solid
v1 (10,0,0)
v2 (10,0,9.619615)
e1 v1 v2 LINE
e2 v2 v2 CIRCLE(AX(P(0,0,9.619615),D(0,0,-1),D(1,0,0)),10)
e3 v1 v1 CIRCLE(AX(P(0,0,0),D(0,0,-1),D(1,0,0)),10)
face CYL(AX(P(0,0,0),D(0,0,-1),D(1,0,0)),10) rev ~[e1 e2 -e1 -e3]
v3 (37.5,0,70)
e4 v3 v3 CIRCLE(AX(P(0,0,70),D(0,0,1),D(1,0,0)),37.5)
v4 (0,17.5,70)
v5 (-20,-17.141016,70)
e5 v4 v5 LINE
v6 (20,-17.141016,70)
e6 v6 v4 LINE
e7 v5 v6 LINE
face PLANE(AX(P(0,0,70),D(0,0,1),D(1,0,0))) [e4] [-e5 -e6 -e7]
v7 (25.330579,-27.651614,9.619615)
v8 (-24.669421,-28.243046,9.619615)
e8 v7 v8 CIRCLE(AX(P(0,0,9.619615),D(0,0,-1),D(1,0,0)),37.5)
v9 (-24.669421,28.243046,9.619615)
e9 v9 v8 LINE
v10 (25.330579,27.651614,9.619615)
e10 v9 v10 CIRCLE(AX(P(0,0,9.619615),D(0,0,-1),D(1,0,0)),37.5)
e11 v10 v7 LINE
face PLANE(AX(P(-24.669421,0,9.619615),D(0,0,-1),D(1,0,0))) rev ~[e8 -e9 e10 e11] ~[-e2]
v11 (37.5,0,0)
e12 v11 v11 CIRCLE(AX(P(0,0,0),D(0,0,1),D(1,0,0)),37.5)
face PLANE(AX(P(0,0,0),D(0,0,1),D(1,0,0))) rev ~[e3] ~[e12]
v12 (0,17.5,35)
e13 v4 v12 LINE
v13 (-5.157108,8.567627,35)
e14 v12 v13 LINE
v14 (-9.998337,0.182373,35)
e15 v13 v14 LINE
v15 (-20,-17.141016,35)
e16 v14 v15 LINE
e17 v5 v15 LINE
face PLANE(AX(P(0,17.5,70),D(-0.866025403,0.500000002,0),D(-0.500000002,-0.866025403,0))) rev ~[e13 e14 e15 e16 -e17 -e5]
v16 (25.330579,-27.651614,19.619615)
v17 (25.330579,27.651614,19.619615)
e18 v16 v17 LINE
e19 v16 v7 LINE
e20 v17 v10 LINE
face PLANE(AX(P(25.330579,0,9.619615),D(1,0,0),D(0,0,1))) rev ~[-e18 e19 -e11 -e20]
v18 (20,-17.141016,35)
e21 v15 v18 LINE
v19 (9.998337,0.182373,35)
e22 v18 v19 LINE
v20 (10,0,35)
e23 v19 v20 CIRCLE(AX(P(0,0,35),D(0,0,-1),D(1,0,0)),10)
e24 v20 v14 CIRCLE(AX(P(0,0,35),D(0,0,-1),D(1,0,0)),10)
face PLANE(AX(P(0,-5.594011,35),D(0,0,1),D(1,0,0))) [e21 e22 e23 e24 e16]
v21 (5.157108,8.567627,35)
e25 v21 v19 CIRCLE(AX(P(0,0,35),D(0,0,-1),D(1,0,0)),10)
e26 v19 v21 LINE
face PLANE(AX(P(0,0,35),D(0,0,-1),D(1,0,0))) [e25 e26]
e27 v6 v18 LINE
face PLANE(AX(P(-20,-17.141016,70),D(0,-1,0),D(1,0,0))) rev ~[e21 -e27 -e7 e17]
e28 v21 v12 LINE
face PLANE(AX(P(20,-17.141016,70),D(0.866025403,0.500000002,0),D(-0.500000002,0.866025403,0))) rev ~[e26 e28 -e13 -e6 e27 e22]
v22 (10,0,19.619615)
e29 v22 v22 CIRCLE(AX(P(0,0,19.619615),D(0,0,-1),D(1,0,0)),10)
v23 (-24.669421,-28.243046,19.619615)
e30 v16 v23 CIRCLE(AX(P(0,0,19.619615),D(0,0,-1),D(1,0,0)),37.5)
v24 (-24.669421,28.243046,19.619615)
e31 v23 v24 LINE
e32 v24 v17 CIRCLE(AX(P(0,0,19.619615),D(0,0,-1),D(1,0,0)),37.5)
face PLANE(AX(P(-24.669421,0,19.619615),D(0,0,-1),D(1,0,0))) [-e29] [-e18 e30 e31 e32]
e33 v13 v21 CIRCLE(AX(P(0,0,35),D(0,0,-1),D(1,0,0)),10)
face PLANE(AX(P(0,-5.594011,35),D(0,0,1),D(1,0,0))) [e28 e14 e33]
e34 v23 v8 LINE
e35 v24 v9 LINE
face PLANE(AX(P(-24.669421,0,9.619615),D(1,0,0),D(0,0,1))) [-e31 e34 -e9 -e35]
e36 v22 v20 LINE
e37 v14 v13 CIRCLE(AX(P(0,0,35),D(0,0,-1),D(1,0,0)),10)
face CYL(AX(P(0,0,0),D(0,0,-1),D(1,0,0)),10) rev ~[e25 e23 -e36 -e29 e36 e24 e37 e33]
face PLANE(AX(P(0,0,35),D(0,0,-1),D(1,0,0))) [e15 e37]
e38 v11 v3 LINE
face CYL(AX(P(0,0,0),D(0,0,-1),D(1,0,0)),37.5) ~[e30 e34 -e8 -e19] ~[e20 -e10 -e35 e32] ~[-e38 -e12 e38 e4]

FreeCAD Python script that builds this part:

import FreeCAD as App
import Part
import Sketcher
Q = App.Units.Quantity


def add_polygon(sketch, points):
    """Adds a closed chain of lines whose ends are joined by coincident constraints."""
    first, n = sketch.GeometryCount, len(points)
    for a, b in zip(points, points[1:] + points[:1]):
        sketch.addGeometry(Part.LineSegment(App.Vector(*a, 0), App.Vector(*b, 0)), False)
    for i in range(n):
        sketch.addConstraint(Sketcher.Constraint("Coincident", first + i, 2, first + (i + 1) % n, 1))

doc = App.newDocument("Part")
body = doc.addObject("PartDesign::Body", "Body")

# Sketch on XY plane
sketch1 = body.newObject("Sketcher::SketchObject", "Sketch")
sketch1.AttachmentSupport = (doc.getObject("XY_Plane"), [""])
sketch1.MapMode = "FlatFace"
sketch1.addGeometry(Part.Circle(App.Vector(0, 0, 0), App.Vector(0, 0, 1), 38), False)
sketch1.addConstraint(Sketcher.Constraint("Coincident", 0, 3, -1, 1))
sketch1.addConstraint(Sketcher.Constraint("Diameter", 0, 75.0))
pad1 = body.newObject("PartDesign::Pad", "Pad")
pad1.Profile = sketch1
pad1.Length = 70

# Sketch on XY plane
sketch2 = body.newObject("Sketcher::SketchObject", "Sketch001")
sketch2.AttachmentSupport = (doc.getObject("XY_Plane"), [""])
sketch2.MapMode = "FlatFace"
sketch2.addGeometry(Part.Circle(App.Vector(0, 0, 0), App.Vector(0, 0, 1), 10), False)
sketch2.addConstraint(Sketcher.Constraint("Coincident", 0, 3, -1, 1))
sketch2.addConstraint(Sketcher.Constraint("Diameter", 0, 20.0))
pocket1 = body.newObject("PartDesign::Pocket", "Pocket")
pocket1.Profile = sketch2
pocket1.Length = 35
pocket1.Reversed = True

# Sketch on XY plane
sketch3 = body.newObject("Sketcher::SketchObject", "Sketch002")
sketch3.AttachmentSupport = (doc.getObject("XY_Plane"), [""])
sketch3.MapMode = "FlatFace"
sketch3.AttachmentOffset = App.Placement(App.Vector(0, 0, 70), App.Rotation())
add_polygon(sketch3, [(0, 18), (-20, -17), (20, -17)])  # lines 0-2
sketch3.addConstraint(Sketcher.Constraint("Horizontal", 1))
sketch3.addConstraint(Sketcher.Constraint("PointOnObject", 2, 2, -2))
sketch3.addConstraint(Sketcher.Constraint("Equal", 0, 2))
sketch3.addConstraint(Sketcher.Constraint("DistanceX", 1, 1, 1, 2, 40.0))
sketch3.addConstraint(Sketcher.Constraint("Angle", 0, Q("-120 deg")))
sketch3.addConstraint(Sketcher.Constraint("DistanceY", -1, 1, 2, 2, 17.5))
pocket2 = body.newObject("PartDesign::Pocket", "Pocket001")
pocket2.Profile = sketch3
pocket2.Length = 35

# Sketch on XZ plane
sketch4 = body.newObject("Sketcher::SketchObject", "Sketch003")
sketch4.AttachmentSupport = (doc.getObject("XZ_Plane"), [""])
sketch4.MapMode = "FlatFace"
add_polygon(sketch4, [(-25, 20), (-25, 10), (25, 10), (25, 20)])  # lines 0-3
sketch4.addConstraint(Sketcher.Constraint("Vertical", 0))
sketch4.addConstraint(Sketcher.Constraint("Horizontal", 1))
sketch4.addConstraint(Sketcher.Constraint("Vertical", 2))
sketch4.addConstraint(Sketcher.Constraint("Horizontal", 3))
sketch4.addConstraint(Sketcher.Constraint("DistanceX", 1, 1, 1, 2, 50.0))
sketch4.addConstraint(Sketcher.Constraint("DistanceY", 0, 2, 0, 1, 10.0))
sketch4.addConstraint(Sketcher.Constraint("DistanceX", 0, 2, -1, 1, 24.669421))
sketch4.addConstraint(Sketcher.Constraint("DistanceY", -1, 1, 0, 2, 9.619615))
pocket3 = body.newObject("PartDesign::Pocket", "Pocket002")
pocket3.Profile = sketch4
pocket3.Length = 80
pocket3.Midplane = True

doc.recompute()
